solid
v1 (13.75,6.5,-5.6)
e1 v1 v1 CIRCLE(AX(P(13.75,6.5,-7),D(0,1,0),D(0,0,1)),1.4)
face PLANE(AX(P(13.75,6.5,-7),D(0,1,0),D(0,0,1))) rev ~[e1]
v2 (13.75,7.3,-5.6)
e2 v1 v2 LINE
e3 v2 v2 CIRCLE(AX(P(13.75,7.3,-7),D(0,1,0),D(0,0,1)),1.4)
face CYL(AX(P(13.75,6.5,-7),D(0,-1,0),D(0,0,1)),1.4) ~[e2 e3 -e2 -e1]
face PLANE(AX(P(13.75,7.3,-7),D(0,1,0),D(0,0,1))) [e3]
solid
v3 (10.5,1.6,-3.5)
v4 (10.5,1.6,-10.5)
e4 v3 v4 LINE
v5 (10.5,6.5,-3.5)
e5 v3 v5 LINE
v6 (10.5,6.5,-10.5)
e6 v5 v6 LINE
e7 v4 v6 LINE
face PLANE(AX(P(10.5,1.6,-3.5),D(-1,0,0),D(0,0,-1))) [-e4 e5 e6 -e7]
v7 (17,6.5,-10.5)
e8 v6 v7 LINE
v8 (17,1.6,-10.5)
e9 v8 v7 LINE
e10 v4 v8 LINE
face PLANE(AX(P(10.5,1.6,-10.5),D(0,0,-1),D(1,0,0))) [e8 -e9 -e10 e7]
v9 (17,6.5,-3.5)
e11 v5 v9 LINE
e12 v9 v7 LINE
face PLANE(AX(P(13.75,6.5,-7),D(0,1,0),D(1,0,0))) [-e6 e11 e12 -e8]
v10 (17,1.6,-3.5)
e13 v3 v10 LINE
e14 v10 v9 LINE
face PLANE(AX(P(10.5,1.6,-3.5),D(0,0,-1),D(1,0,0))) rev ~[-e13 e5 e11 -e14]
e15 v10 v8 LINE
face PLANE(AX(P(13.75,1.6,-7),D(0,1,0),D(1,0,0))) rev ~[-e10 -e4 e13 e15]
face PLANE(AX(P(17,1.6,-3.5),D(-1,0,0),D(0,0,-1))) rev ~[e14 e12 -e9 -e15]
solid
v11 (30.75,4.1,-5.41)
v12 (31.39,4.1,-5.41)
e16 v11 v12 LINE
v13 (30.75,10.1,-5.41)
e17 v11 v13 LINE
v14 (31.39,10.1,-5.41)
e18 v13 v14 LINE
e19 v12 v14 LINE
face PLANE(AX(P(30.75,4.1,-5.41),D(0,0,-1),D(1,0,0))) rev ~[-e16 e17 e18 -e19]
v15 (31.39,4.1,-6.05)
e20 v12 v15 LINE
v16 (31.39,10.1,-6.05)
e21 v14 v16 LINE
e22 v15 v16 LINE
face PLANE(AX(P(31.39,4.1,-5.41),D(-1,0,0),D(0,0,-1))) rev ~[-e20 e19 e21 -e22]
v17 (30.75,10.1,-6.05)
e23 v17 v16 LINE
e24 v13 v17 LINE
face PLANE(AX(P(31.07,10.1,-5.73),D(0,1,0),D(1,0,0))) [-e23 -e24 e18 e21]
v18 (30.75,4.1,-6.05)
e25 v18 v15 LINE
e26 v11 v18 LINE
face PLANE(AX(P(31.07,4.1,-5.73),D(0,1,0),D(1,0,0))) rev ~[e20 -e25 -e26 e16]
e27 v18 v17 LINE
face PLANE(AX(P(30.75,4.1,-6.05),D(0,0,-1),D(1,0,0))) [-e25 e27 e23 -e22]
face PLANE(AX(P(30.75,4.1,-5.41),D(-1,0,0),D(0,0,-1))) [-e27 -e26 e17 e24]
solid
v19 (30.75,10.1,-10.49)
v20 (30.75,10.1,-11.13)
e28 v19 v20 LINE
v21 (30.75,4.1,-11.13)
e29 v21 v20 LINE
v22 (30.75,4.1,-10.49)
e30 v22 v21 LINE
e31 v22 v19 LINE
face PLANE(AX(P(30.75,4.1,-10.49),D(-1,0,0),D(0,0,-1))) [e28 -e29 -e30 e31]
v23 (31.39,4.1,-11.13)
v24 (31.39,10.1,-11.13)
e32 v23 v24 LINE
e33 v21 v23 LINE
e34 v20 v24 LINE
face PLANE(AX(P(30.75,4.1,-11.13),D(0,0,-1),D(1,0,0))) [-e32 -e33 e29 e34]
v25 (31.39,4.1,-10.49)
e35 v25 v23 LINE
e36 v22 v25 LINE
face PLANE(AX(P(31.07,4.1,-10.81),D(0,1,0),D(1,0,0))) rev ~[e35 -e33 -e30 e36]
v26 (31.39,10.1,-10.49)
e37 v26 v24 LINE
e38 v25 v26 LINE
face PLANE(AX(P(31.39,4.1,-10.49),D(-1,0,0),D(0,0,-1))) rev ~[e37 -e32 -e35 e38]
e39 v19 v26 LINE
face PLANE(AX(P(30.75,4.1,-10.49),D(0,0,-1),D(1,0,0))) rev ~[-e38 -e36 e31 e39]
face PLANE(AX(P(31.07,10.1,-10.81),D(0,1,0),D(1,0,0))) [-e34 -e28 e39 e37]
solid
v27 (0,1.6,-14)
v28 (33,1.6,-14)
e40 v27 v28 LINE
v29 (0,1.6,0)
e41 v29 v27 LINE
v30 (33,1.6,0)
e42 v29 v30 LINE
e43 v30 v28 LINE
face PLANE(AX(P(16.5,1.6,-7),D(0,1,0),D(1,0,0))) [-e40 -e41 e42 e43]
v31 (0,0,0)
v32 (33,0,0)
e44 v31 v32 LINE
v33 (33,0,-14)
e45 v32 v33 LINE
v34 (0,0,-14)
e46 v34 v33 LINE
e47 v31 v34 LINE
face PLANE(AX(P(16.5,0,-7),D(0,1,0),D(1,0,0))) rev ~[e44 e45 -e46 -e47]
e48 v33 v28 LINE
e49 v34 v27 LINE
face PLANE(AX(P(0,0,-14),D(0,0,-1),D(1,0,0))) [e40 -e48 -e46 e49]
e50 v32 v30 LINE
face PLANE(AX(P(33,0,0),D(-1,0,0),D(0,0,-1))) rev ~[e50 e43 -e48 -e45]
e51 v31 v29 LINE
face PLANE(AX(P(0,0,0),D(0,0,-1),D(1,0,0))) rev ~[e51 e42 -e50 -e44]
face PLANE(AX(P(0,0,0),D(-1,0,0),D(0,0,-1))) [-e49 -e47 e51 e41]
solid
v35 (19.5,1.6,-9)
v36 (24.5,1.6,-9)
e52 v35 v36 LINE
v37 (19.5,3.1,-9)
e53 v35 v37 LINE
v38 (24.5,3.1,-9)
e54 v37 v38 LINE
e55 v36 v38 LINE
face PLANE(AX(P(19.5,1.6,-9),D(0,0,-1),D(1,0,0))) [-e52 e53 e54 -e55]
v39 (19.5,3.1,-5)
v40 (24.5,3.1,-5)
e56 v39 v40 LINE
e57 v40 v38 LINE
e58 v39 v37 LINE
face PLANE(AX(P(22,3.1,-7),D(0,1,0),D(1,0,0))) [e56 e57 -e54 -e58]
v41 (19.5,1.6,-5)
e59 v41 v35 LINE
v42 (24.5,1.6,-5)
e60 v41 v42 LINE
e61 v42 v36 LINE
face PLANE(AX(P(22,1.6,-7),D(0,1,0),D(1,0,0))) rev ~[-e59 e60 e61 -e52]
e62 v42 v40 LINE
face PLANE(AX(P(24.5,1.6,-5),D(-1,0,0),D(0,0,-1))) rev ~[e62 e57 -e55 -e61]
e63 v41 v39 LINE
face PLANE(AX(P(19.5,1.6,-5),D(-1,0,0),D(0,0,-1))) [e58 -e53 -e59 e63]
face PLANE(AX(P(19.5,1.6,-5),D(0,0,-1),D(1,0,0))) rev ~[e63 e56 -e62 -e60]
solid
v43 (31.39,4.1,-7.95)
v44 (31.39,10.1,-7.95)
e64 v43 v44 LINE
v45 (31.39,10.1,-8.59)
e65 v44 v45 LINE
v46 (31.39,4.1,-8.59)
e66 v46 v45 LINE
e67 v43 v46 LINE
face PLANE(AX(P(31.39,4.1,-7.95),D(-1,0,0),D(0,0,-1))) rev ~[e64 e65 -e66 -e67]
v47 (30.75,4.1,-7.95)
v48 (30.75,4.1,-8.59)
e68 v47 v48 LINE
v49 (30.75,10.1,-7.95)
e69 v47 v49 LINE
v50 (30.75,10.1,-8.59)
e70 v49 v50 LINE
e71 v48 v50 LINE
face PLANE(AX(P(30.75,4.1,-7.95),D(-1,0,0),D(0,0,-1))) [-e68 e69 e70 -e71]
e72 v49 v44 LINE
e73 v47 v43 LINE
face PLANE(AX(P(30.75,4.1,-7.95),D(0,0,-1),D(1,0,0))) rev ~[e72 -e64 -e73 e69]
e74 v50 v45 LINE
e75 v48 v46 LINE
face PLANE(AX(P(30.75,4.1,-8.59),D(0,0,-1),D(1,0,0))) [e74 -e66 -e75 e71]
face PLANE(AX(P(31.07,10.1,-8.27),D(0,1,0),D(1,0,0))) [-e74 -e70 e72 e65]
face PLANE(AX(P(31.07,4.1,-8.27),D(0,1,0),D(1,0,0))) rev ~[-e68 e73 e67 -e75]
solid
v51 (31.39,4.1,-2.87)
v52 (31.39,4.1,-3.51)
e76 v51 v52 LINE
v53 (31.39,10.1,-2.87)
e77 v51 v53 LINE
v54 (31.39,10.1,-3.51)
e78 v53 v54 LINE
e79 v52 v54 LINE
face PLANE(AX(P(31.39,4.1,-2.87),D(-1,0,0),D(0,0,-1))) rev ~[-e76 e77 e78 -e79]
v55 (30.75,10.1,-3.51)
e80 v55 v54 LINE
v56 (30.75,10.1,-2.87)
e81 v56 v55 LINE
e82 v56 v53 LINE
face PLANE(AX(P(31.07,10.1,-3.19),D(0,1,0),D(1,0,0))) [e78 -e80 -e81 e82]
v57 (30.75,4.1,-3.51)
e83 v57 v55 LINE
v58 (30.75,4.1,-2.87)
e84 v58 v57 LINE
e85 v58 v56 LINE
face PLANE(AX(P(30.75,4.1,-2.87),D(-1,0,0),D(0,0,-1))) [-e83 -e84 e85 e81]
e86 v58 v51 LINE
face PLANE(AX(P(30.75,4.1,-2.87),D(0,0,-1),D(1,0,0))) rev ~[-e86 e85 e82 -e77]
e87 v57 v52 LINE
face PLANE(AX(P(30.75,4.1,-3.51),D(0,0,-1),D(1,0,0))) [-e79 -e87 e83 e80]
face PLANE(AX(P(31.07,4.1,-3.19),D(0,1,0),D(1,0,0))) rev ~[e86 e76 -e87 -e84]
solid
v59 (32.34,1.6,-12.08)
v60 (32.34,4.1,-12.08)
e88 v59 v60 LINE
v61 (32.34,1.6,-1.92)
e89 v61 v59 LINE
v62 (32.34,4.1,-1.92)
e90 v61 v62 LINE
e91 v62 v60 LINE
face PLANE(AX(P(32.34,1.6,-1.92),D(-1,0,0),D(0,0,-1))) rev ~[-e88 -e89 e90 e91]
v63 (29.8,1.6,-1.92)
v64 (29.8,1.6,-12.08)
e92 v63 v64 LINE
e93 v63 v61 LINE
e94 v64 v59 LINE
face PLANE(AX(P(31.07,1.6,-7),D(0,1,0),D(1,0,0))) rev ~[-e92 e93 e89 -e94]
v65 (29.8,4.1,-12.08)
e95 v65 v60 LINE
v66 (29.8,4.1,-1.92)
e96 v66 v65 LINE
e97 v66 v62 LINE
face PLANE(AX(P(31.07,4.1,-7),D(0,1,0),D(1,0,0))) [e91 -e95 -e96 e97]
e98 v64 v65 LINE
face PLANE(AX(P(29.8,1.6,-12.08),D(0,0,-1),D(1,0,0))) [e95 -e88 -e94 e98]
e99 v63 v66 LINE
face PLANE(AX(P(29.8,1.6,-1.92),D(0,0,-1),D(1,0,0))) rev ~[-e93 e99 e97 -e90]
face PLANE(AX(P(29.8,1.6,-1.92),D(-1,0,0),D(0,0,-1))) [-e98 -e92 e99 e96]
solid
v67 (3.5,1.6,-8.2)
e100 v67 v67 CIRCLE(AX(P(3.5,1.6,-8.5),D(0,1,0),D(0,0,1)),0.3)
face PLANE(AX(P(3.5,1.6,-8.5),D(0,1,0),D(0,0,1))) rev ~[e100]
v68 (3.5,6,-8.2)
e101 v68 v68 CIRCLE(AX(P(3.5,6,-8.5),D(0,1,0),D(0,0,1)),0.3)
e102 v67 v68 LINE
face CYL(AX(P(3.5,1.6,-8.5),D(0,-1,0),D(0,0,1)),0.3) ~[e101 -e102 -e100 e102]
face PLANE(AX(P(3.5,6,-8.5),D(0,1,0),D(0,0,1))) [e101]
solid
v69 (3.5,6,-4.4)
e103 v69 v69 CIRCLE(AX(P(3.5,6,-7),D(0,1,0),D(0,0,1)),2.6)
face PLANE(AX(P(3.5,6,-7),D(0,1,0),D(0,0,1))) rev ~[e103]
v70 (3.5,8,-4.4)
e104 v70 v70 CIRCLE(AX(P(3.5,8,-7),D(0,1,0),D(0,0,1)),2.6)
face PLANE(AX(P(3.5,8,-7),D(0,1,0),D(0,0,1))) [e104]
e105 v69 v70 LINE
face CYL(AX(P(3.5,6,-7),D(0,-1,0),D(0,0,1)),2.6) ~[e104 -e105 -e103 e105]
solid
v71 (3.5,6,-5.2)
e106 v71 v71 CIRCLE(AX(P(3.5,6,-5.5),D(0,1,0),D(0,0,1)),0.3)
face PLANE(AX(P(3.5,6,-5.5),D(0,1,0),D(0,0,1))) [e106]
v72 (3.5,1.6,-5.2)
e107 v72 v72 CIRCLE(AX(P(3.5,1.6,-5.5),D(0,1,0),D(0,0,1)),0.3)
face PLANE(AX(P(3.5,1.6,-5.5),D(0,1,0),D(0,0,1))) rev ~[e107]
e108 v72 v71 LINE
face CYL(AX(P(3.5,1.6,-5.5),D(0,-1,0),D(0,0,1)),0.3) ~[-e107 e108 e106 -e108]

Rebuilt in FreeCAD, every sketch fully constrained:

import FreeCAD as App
import Part
import Sketcher

doc = App.newDocument("Part")
body = doc.addObject("PartDesign::Body", "Body")

sketch1 = doc.addObject("Sketcher::SketchObject", "Sketch")
body.addObject(sketch1)
sketch1.AttachmentSupport = (doc.XZ_Plane, [""])
sketch1.MapMode = "FlatFace"
sketch1.addGeometry([
    Part.LineSegment(App.Vector(0, -14, 0), App.Vector(0, 0, 0)),
    Part.LineSegment(App.Vector(0, 0, 0), App.Vector(33, 0, 0)),
    Part.LineSegment(App.Vector(33, 0, 0), App.Vector(33, -14, 0)),
    Part.LineSegment(App.Vector(33, -14, 0), App.Vector(0, -14, 0)),
], False)
sketch1.addConstraint([
    Sketcher.Constraint("Coincident", 0, 2, 1, 1),
    Sketcher.Constraint("Coincident", 1, 2, 2, 1),
    Sketcher.Constraint("Coincident", 2, 2, 3, 1),
    Sketcher.Constraint("Coincident", 3, 2, 0, 1),
    Sketcher.Constraint("Vertical", 0),
    Sketcher.Constraint("Horizontal", 1),
    Sketcher.Constraint("Vertical", 2),
    Sketcher.Constraint("Horizontal", 3),
    Sketcher.Constraint("Coincident", 0, 2, -1, 1),
    Sketcher.Constraint("DistanceX", 1, 1, 1, 2, 33.0),
    Sketcher.Constraint("DistanceY", 0, 1, 0, 2, 14.0),
])
pad1 = doc.addObject("PartDesign::Pad", "Pad")
body.addObject(pad1)
pad1.Profile = sketch1
pad1.Length = 1.6
pad1.Reversed = True
body2 = doc.addObject("PartDesign::Body", "Body001")

sketch2 = doc.addObject("Sketcher::SketchObject", "Sketch001")
body2.addObject(sketch2)
sketch2.AttachmentSupport = (doc.getObject("XZ_Plane001"), [""])
sketch2.MapMode = "FlatFace"
sketch2.AttachmentOffset = App.Placement(App.Vector(0, 0, -1.6), App.Rotation())
sketch2.addGeometry(Part.Circle(App.Vector(3.5, -5.5, 0), App.Vector(0, 0, 1), 0.3), False)
sketch2.addConstraint([
    Sketcher.Constraint("Diameter", 0, 0.6),
    Sketcher.Constraint("DistanceX", -1, 1, 0, 3, 3.5),
    Sketcher.Constraint("DistanceY", 0, 3, -1, 1, 5.5),
])
pad2 = doc.addObject("PartDesign::Pad", "Pad001")
body2.addObject(pad2)
pad2.Profile = sketch2
pad2.Length = 4.4
pad2.Reversed = True
body3 = doc.addObject("PartDesign::Body", "Body002")

sketch3 = doc.addObject("Sketcher::SketchObject", "Sketch002")
body3.addObject(sketch3)
sketch3.AttachmentSupport = (doc.getObject("XZ_Plane002"), [""])
sketch3.MapMode = "FlatFace"
sketch3.AttachmentOffset = App.Placement(App.Vector(0, 0, -1.6), App.Rotation())
sketch3.addGeometry(Part.Circle(App.Vector(3.5, -8.5, 0), App.Vector(0, 0, 1), 0.3), False)
sketch3.addConstraint([
    Sketcher.Constraint("Diameter", 0, 0.6),
    Sketcher.Constraint("DistanceX", -1, 1, 0, 3, 3.5),
    Sketcher.Constraint("DistanceY", 0, 3, -1, 1, 8.5),
])
pad3 = doc.addObject("PartDesign::Pad", "Pad002")
body3.addObject(pad3)
pad3.Profile = sketch3
pad3.Length = 4.4
pad3.Reversed = True
body4 = doc.addObject("PartDesign::Body", "Body003")

sketch4 = doc.addObject("Sketcher::SketchObject", "Sketch003")
body4.addObject(sketch4)
sketch4.AttachmentSupport = (doc.getObject("XZ_Plane003"), [""])
sketch4.MapMode = "FlatFace"
sketch4.AttachmentOffset = App.Placement(App.Vector(0, 0, -6), App.Rotation())
sketch4.addGeometry(Part.Circle(App.Vector(3.5, -7, 0), App.Vector(0, 0, 1), 2.6), False)
sketch4.addConstraint([
    Sketcher.Constraint("Diameter", 0, 5.2),
    Sketcher.Constraint("DistanceY", 0, 3, -1, 1, 7.0),
    Sketcher.Constraint("DistanceX", -1, 1, 0, 3, 3.5),
])
pad4 = doc.addObject("PartDesign::Pad", "Pad003")
body4.addObject(pad4)
pad4.Profile = sketch4
pad4.Length = 2
pad4.Reversed = True
body5 = doc.addObject("PartDesign::Body", "Body004")

sketch5 = doc.addObject("Sketcher::SketchObject", "Sketch004")
body5.addObject(sketch5)
sketch5.AttachmentSupport = (doc.getObject("XZ_Plane004"), [""])
sketch5.MapMode = "FlatFace"
sketch5.AttachmentOffset = App.Placement(App.Vector(0, 0, -1.6), App.Rotation())
sketch5.addGeometry([
    Part.LineSegment(App.Vector(10.5, -10.5, 0), App.Vector(10.5, -3.5, 0)),
    Part.LineSegment(App.Vector(10.5, -3.5, 0), App.Vector(17, -3.5, 0)),
    Part.LineSegment(App.Vector(17, -3.5, 0), App.Vector(17, -10.5, 0)),
    Part.LineSegment(App.Vector(17, -10.5, 0), App.Vector(10.5, -10.5, 0)),
], False)
sketch5.addConstraint([
    Sketcher.Constraint("Coincident", 0, 2, 1, 1),
    Sketcher.Constraint("Coincident", 1, 2, 2, 1),
    Sketcher.Constraint("Coincident", 2, 2, 3, 1),
    Sketcher.Constraint("Coincident", 3, 2, 0, 1),
    Sketcher.Constraint("Vertical", 0),
    Sketcher.Constraint("Horizontal", 1),
    Sketcher.Constraint("Vertical", 2),
    Sketcher.Constraint("Horizontal", 3),
    Sketcher.Constraint("DistanceY", 0, 1, 0, 2, 7.0),
    Sketcher.Constraint("DistanceX", 1, 1, 1, 2, 6.5),
    Sketcher.Constraint("DistanceX", -1, 1, 1, 2, 17.0),
    Sketcher.Constraint("DistanceY", 0, 2, -1, 1, 3.5),
])
pad5 = doc.addObject("PartDesign::Pad", "Pad004")
body5.addObject(pad5)
pad5.Profile = sketch5
pad5.Length = 4.9
pad5.Reversed = True
body6 = doc.addObject("PartDesign::Body", "Body005")

sketch6 = doc.addObject("Sketcher::SketchObject", "Sketch005")
body6.addObject(sketch6)
sketch6.AttachmentSupport = (doc.getObject("XZ_Plane005"), [""])
sketch6.MapMode = "FlatFace"
sketch6.AttachmentOffset = App.Placement(App.Vector(0, 0, -6.5), App.Rotation())
sketch6.addGeometry(Part.Circle(App.Vector(13.75, -7, 0), App.Vector(0, 0, 1), 1.4), False)
sketch6.addConstraint([
    Sketcher.Constraint("Diameter", 0, 2.8),
    Sketcher.Constraint("DistanceY", 0, 3, -1, 1, 7.0),
    Sketcher.Constraint("DistanceX", -1, 1, 0, 3, 13.75),
])
pad6 = doc.addObject("PartDesign::Pad", "Pad005")
body6.addObject(pad6)
pad6.Profile = sketch6
pad6.Length = 0.8
pad6.Reversed = True
body7 = doc.addObject("PartDesign::Body", "Body006")

sketch7 = doc.addObject("Sketcher::SketchObject", "Sketch006")
body7.addObject(sketch7)
sketch7.AttachmentSupport = (doc.getObject("XZ_Plane006"), [""])
sketch7.MapMode = "FlatFace"
sketch7.AttachmentOffset = App.Placement(App.Vector(0, 0, -1.6), App.Rotation())
sketch7.addGeometry([
    Part.LineSegment(App.Vector(19.5, -9, 0), App.Vector(19.5, -5, 0)),
    Part.LineSegment(App.Vector(19.5, -5, 0), App.Vector(24.5, -5, 0)),
    Part.LineSegment(App.Vector(24.5, -5, 0), App.Vector(24.5, -9, 0)),
    Part.LineSegment(App.Vector(24.5, -9, 0), App.Vector(19.5, -9, 0)),
], False)
sketch7.addConstraint([
    Sketcher.Constraint("Coincident", 0, 2, 1, 1),
    Sketcher.Constraint("Coincident", 1, 2, 2, 1),
    Sketcher.Constraint("Coincident", 2, 2, 3, 1),
    Sketcher.Constraint("Coincident", 3, 2, 0, 1),
    Sketcher.Constraint("Vertical", 0),
    Sketcher.Constraint("Horizontal", 1),
    Sketcher.Constraint("Vertical", 2),
    Sketcher.Constraint("Horizontal", 3),
    Sketcher.Constraint("DistanceX", 1, 1, 1, 2, 5.0),
    Sketcher.Constraint("DistanceY", 0, 1, 0, 2, 4.0),
    Sketcher.Constraint("DistanceY", 0, 2, -1, 1, 5.0),
    Sketcher.Constraint("DistanceX", -1, 1, 0, 2, 19.5),
])
pad7 = doc.addObject("PartDesign::Pad", "Pad006")
body7.addObject(pad7)
pad7.Profile = sketch7
pad7.Length = 1.5
pad7.Reversed = True
body8 = doc.addObject("PartDesign::Body", "Body007")

sketch8 = doc.addObject("Sketcher::SketchObject", "Sketch007")
body8.addObject(sketch8)
sketch8.AttachmentSupport = (doc.getObject("XZ_Plane007"), [""])
sketch8.MapMode = "FlatFace"
sketch8.AttachmentOffset = App.Placement(App.Vector(0, 0, -1.6), App.Rotation())
sketch8.addGeometry([
    Part.LineSegment(App.Vector(29.8, -12.08, 0), App.Vector(29.8, -1.92, 0)),
    Part.LineSegment(App.Vector(29.8, -1.92, 0), App.Vector(32.34, -1.92, 0)),
    Part.LineSegment(App.Vector(32.34, -1.92, 0), App.Vector(32.34, -12.08, 0)),
    Part.LineSegment(App.Vector(32.34, -12.08, 0), App.Vector(29.8, -12.08, 0)),
], False)
sketch8.addConstraint([
    Sketcher.Constraint("Coincident", 0, 2, 1, 1),
    Sketcher.Constraint("Coincident", 1, 2, 2, 1),
    Sketcher.Constraint("Coincident", 2, 2, 3, 1),
    Sketcher.Constraint("Coincident", 3, 2, 0, 1),
    Sketcher.Constraint("Vertical", 0),
    Sketcher.Constraint("Horizontal", 1),
    Sketcher.Constraint("Vertical", 2),
    Sketcher.Constraint("Horizontal", 3),
    Sketcher.Constraint("DistanceX", 1, 1, 1, 2, 2.54),
    Sketcher.Constraint("DistanceY", 0, 1, 0, 2, 10.16),
    Sketcher.Constraint("DistanceX", -1, 1, 0, 2, 29.8),
    Sketcher.Constraint("DistanceY", 0, 2, -1, 1, 1.92),
])
pad8 = doc.addObject("PartDesign::Pad", "Pad007")
body8.addObject(pad8)
pad8.Profile = sketch8
pad8.Length = 2.5
pad8.Reversed = True
body9 = doc.addObject("PartDesign::Body", "Body008")

sketch9 = doc.addObject("Sketcher::SketchObject", "Sketch008")
body9.addObject(sketch9)
sketch9.AttachmentSupport = (doc.getObject("XZ_Plane008"), [""])
sketch9.MapMode = "FlatFace"
sketch9.AttachmentOffset = App.Placement(App.Vector(0, 0, -4.1), App.Rotation())
sketch9.addGeometry([
    Part.LineSegment(App.Vector(30.75, -11.13, 0), App.Vector(30.75, -10.49, 0)),
    Part.LineSegment(App.Vector(30.75, -10.49, 0), App.Vector(31.39, -10.49, 0)),
    Part.LineSegment(App.Vector(31.39, -10.49, 0), App.Vector(31.39, -11.13, 0)),
    Part.LineSegment(App.Vector(31.39, -11.13, 0), App.Vector(30.75, -11.13, 0)),
], False)
sketch9.addConstraint([
    Sketcher.Constraint("Coincident", 0, 2, 1, 1),
    Sketcher.Constraint("Coincident", 1, 2, 2, 1),
    Sketcher.Constraint("Coincident", 2, 2, 3, 1),
    Sketcher.Constraint("Coincident", 3, 2, 0, 1),
    Sketcher.Constraint("Vertical", 0),
    Sketcher.Constraint("Horizontal", 1),
    Sketcher.Constraint("Vertical", 2),
    Sketcher.Constraint("Horizontal", 3),
    Sketcher.Constraint("Equal", 3, 0),
    Sketcher.Constraint("DistanceX", 1, 1, 1, 2, 0.64),
    Sketcher.Constraint("DistanceX", -1, 1, 0, 2, 30.75),
    Sketcher.Constraint("DistanceY", 0, 2, -1, 1, 10.49),
])
pad9 = doc.addObject("PartDesign::Pad", "Pad008")
body9.addObject(pad9)
pad9.Profile = sketch9
pad9.Length = 6
pad9.Reversed = True
body10 = doc.addObject("PartDesign::Body", "Body009")

sketch10 = doc.addObject("Sketcher::SketchObject", "Sketch009")
body10.addObject(sketch10)
sketch10.AttachmentSupport = (doc.getObject("XZ_Plane009"), [""])
sketch10.MapMode = "FlatFace"
sketch10.AttachmentOffset = App.Placement(App.Vector(0, 0, -4.1), App.Rotation())
sketch10.addGeometry([
    Part.LineSegment(App.Vector(30.75, -8.59, 0), App.Vector(30.75, -7.95, 0)),
    Part.LineSegment(App.Vector(30.75, -7.95, 0), App.Vector(31.39, -7.95, 0)),
    Part.LineSegment(App.Vector(31.39, -7.95, 0), App.Vector(31.39, -8.59, 0)),
    Part.LineSegment(App.Vector(31.39, -8.59, 0), App.Vector(30.75, -8.59, 0)),
], False)
sketch10.addConstraint([
    Sketcher.Constraint("Coincident", 0, 2, 1, 1),
    Sketcher.Constraint("Coincident", 1, 2, 2, 1),
    Sketcher.Constraint("Coincident", 2, 2, 3, 1),
    Sketcher.Constraint("Coincident", 3, 2, 0, 1),
    Sketcher.Constraint("Vertical", 0),
    Sketcher.Constraint("Horizontal", 1),
    Sketcher.Constraint("Vertical", 2),
    Sketcher.Constraint("Horizontal", 3),
    Sketcher.Constraint("Equal", 3, 0),
    Sketcher.Constraint("DistanceX", 1, 1, 1, 2, 0.64),
    Sketcher.Constraint("DistanceX", -1, 1, 0, 2, 30.75),
    Sketcher.Constraint("DistanceY", 0, 2, -1, 1, 7.95),
])
pad10 = doc.addObject("PartDesign::Pad", "Pad009")
body10.addObject(pad10)
pad10.Profile = sketch10
pad10.Length = 6
pad10.Reversed = True
body11 = doc.addObject("PartDesign::Body", "Body010")

sketch11 = doc.addObject("Sketcher::SketchObject", "Sketch010")
body11.addObject(sketch11)
sketch11.AttachmentSupport = (doc.getObject("XZ_Plane010"), [""])
sketch11.MapMode = "FlatFace"
sketch11.AttachmentOffset = App.Placement(App.Vector(0, 0, -4.1), App.Rotation())
sketch11.addGeometry([
    Part.LineSegment(App.Vector(30.75, -6.05, 0), App.Vector(30.75, -5.41, 0)),
    Part.LineSegment(App.Vector(30.75, -5.41, 0), App.Vector(31.39, -5.41, 0)),
    Part.LineSegment(App.Vector(31.39, -5.41, 0), App.Vector(31.39, -6.05, 0)),
    Part.LineSegment(App.Vector(31.39, -6.05, 0), App.Vector(30.75, -6.05, 0)),
], False)
sketch11.addConstraint([
    Sketcher.Constraint("Coincident", 0, 2, 1, 1),
    Sketcher.Constraint("Coincident", 1, 2, 2, 1),
    Sketcher.Constraint("Coincident", 2, 2, 3, 1),
    Sketcher.Constraint("Coincident", 3, 2, 0, 1),
    Sketcher.Constraint("Vertical", 0),
    Sketcher.Constraint("Horizontal", 1),
    Sketcher.Constraint("Vertical", 2),
    Sketcher.Constraint("Horizontal", 3),
    Sketcher.Constraint("Equal", 3, 0),
    Sketcher.Constraint("DistanceX", 1, 1, 1, 2, 0.64),
    Sketcher.Constraint("DistanceX", -1, 1, 0, 2, 30.75),
    Sketcher.Constraint("DistanceY", 0, 2, -1, 1, 5.41),
])
pad11 = doc.addObject("PartDesign::Pad", "Pad010")
body11.addObject(pad11)
pad11.Profile = sketch11
pad11.Length = 6
pad11.Reversed = True
body12 = doc.addObject("PartDesign::Body", "Body011")

sketch12 = doc.addObject("Sketcher::SketchObject", "Sketch011")
body12.addObject(sketch12)
sketch12.AttachmentSupport = (doc.getObject("XZ_Plane011"), [""])
sketch12.MapMode = "FlatFace"
sketch12.AttachmentOffset = App.Placement(App.Vector(0, 0, -4.1), App.Rotation())
sketch12.addGeometry([
    Part.LineSegment(App.Vector(30.75, -3.51, 0), App.Vector(30.75, -2.87, 0)),
    Part.LineSegment(App.Vector(30.75, -2.87, 0), App.Vector(31.39, -2.87, 0)),
    Part.LineSegment(App.Vector(31.39, -2.87, 0), App.Vector(31.39, -3.51, 0)),
    Part.LineSegment(App.Vector(31.39, -3.51, 0), App.Vector(30.75, -3.51, 0)),
], False)
sketch12.addConstraint([
    Sketcher.Constraint("Coincident", 0, 2, 1, 1),
    Sketcher.Constraint("Coincident", 1, 2, 2, 1),
    Sketcher.Constraint("Coincident", 2, 2, 3, 1),
    Sketcher.Constraint("Coincident", 3, 2, 0, 1),
    Sketcher.Constraint("Vertical", 0),
    Sketcher.Constraint("Horizontal", 1),
    Sketcher.Constraint("Vertical", 2),
    Sketcher.Constraint("Horizontal", 3),
    Sketcher.Constraint("Equal", 3, 0),
    Sketcher.Constraint("DistanceX", 1, 1, 1, 2, 0.64),
    Sketcher.Constraint("DistanceX", -1, 1, 0, 2, 30.75),
    Sketcher.Constraint("DistanceY", 0, 2, -1, 1, 2.87),
])
pad12 = doc.addObject("PartDesign::Pad", "Pad011")
body12.addObject(pad12)
pad12.Profile = sketch12
pad12.Length = 6
pad12.Reversed = True

doc.recompute()
